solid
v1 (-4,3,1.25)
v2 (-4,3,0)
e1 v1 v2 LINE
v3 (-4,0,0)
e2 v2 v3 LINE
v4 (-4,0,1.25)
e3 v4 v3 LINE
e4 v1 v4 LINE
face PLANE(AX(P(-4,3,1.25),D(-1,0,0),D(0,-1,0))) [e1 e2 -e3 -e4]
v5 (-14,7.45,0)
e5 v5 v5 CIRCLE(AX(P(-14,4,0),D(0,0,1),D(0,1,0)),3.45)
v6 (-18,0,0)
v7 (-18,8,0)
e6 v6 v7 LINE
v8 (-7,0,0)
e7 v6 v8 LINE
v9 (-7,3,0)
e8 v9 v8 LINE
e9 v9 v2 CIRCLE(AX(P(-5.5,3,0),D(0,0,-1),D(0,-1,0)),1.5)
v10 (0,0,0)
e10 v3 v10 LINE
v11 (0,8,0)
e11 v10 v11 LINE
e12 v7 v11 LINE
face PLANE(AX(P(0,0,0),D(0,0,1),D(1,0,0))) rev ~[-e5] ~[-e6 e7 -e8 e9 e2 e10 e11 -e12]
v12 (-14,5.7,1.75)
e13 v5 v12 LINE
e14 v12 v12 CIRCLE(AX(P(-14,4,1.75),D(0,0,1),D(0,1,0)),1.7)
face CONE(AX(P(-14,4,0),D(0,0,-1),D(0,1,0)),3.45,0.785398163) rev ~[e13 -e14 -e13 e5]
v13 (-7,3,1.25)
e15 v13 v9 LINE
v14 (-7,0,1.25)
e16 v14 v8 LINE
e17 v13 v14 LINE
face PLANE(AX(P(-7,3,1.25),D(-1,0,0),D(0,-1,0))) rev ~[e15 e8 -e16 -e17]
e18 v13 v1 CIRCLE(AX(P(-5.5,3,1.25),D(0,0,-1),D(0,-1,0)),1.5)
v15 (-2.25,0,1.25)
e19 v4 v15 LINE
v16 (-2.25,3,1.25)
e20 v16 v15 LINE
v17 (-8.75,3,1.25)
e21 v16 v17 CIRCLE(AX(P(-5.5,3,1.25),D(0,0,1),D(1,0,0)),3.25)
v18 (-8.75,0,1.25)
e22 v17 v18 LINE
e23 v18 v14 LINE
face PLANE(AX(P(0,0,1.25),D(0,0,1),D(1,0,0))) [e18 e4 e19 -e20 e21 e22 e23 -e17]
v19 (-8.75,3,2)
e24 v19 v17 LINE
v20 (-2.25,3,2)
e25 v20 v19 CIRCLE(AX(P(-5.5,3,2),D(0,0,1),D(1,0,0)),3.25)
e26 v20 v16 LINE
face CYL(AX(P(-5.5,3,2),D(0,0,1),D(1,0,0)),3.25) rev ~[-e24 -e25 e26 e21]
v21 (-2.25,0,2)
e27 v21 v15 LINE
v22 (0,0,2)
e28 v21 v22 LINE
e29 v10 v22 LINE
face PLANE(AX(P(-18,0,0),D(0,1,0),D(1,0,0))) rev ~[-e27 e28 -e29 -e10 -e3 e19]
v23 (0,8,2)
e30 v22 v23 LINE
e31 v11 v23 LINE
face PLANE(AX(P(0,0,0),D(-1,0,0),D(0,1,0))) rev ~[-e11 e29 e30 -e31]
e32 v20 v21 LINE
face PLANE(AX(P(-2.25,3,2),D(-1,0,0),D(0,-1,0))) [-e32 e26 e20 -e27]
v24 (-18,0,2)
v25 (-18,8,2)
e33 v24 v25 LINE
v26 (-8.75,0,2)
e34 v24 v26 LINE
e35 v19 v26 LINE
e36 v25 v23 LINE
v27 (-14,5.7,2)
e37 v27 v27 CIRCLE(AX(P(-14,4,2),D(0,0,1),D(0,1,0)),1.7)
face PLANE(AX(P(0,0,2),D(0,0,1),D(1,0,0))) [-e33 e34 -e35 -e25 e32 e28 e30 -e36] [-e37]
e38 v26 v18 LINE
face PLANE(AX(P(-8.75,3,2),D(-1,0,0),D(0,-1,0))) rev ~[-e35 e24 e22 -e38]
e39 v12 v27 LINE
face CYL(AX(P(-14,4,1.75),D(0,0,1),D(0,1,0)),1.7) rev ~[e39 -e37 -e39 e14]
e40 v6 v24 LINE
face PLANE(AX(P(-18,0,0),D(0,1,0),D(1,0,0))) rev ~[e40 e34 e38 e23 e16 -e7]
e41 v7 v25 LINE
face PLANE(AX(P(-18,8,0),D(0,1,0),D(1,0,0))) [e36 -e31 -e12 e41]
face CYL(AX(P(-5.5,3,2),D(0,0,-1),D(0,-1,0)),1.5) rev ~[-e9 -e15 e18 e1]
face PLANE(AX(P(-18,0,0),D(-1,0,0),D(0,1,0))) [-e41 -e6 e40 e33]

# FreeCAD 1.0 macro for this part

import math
import FreeCAD as App
import Part
import Sketcher
Q = App.Units.Quantity

doc = App.newDocument("Part")
params = doc.addObject("Spreadsheet::Sheet", "Params")
for row, (alias, value) in enumerate([
    ("sketch1_width", "18 mm"),
    ("sketch1_height", "8 mm"),
    ("pad1_length", "2 mm"),
    ("sketch2_diameter", "3 mm"),
    ("hole_diameter", "3 mm"),
    ("hole_depth", "8 mm"),
    ("sketch3_radius", "3.25 mm"),
    ("sketch3_diameter", "3 mm"),
    ("sketch3_height", "3 mm"),
    ("pocket1_length", "0.75 mm"),
    ("sketch4_radius", "1.5 mm"),
    ("sketch5_diameter", "3.4 mm"),
    ("hole2_diameter", "3.4 mm"),
    ("hole2_csink_diameter", "6.9 mm"),
], start=1):
    params.set(f"A{row}", alias)
    params.set(f"B{row}", "=" + value)
    params.setAlias(f"B{row}", alias)

body = doc.addObject("PartDesign::Body", "Body")

# Sketch on XY plane
sketch1 = body.newObject("Sketcher::SketchObject", "Sketch")
sketch1.AttachmentSupport = (doc.getObject("XY_Plane"), [""])
sketch1.MapMode = "FlatFace"
sketch1.addGeometry(Part.LineSegment(App.Vector(-18, 8, 0), App.Vector(-18, 0, 0)), False)
sketch1.addGeometry(Part.LineSegment(App.Vector(-18, 0, 0), App.Vector(0, 0, 0)), False)
sketch1.addGeometry(Part.LineSegment(App.Vector(0, 0, 0), App.Vector(0, 8, 0)), False)
sketch1.addGeometry(Part.LineSegment(App.Vector(0, 8, 0), App.Vector(-18, 8, 0)), False)
sketch1.addConstraint(Sketcher.Constraint("Coincident", 0, 2, 1, 1))
sketch1.addConstraint(Sketcher.Constraint("Coincident", 1, 2, 2, 1))
sketch1.addConstraint(Sketcher.Constraint("Coincident", 2, 2, 3, 1))
sketch1.addConstraint(Sketcher.Constraint("Coincident", 3, 2, 0, 1))
sketch1.addConstraint(Sketcher.Constraint("Vertical", 0))
sketch1.addConstraint(Sketcher.Constraint("Horizontal", 1))
sketch1.addConstraint(Sketcher.Constraint("Vertical", 2))
sketch1.addConstraint(Sketcher.Constraint("Horizontal", 3))
sketch1.addConstraint(Sketcher.Constraint("Coincident", 1, 2, -1, 1))
sketch1.addConstraint(Sketcher.Constraint("DistanceX", 1, 1, 1, 2, Q("18 mm")))
sketch1.addConstraint(Sketcher.Constraint("DistanceY", 0, 2, 0, 1, Q("8 mm")))
sketch1.setExpression("Constraints[9]", "Params.sketch1_width")
sketch1.setExpression("Constraints[10]", "Params.sketch1_height")
pad1 = body.newObject("PartDesign::Pad", "Pad")
pad1.Profile = sketch1
pad1.setExpression("Length", "Params.pad1_length")

# Sketch on XY plane
sketch2 = body.newObject("Sketcher::SketchObject", "Sketch001")
sketch2.AttachmentSupport = (doc.getObject("XY_Plane"), [""])
sketch2.MapMode = "FlatFace"
sketch2.AttachmentOffset = App.Placement(App.Vector(0, 0, 2), App.Rotation())
sketch2.addGeometry(Part.Circle(App.Vector(-5.5, 3, 0), App.Vector(0, 0, 1), 1.5), False)
sketch2.addConstraint(Sketcher.Constraint("Diameter", 0, Q("3 mm")))
sketch2.addConstraint(Sketcher.Constraint("DistanceY", -1, 1, 0, 3, Q("3 mm")))
sketch2.addConstraint(Sketcher.Constraint("DistanceX", 0, 3, -1, 1, Q("5.5 mm")))
sketch2.setExpression("Constraints[0]", "Params.sketch2_diameter")
doc.recompute()
hole = body.newObject("PartDesign::Hole", "Hole")
hole.Profile = sketch2
hole.ThreadType = "None"
hole.setExpression("Diameter", "Params.hole_diameter")
hole.DepthType = "Dimension"
hole.setExpression("Depth", "Params.hole_depth")
hole.DrillPoint = "Angled"
hole.DrillPointAngle = 118

# Sketch on XY plane
sketch3 = body.newObject("Sketcher::SketchObject", "Sketch002")
sketch3.AttachmentSupport = (doc.getObject("XY_Plane"), [""])
sketch3.MapMode = "FlatFace"
sketch3.AttachmentOffset = App.Placement(App.Vector(0, 0, 2), App.Rotation())
sketch3.addGeometry(Part.LineSegment(App.Vector(-8.8, 3, 0), App.Vector(-8.8, 0, 0)), False)
sketch3.addGeometry(Part.LineSegment(App.Vector(-8.8, 0, 0), App.Vector(-2.2, 0, 0)), False)
sketch3.addGeometry(Part.LineSegment(App.Vector(-2.2, 0, 0), App.Vector(-2.2, 3, 0)), False)
sketch3.addGeometry(Part.ArcOfCircle(Part.Circle(App.Vector(-5.5, 3, 0), App.Vector(0, 0, 1), 3.2), math.radians(0), math.radians(180)), False)
sketch3.addGeometry(Part.Circle(App.Vector(-5.5, 3, 0), App.Vector(0, 0, 1), 1.5), False)
sketch3.addConstraint(Sketcher.Constraint("Coincident", 0, 2, 1, 1))
sketch3.addConstraint(Sketcher.Constraint("Coincident", 1, 2, 2, 1))
sketch3.addConstraint(Sketcher.Constraint("Tangent", 2, 2, 3, 1))
sketch3.addConstraint(Sketcher.Constraint("Tangent", 3, 2, 0, 1))
sketch3.addConstraint(Sketcher.Constraint("Vertical", 0))
sketch3.addConstraint(Sketcher.Constraint("Horizontal", 1))
sketch3.addConstraint(Sketcher.Constraint("Vertical", 2))
sketch3.addConstraint(Sketcher.Constraint("Coincident", 4, 3, 3, 3))
sketch3.addConstraint(Sketcher.Constraint("PointOnObject", 0, 2, -1))
sketch3.addConstraint(Sketcher.Constraint("Radius", 3, Q("3.25 mm")))
sketch3.addConstraint(Sketcher.Constraint("Diameter", 4, Q("3 mm")))
sketch3.addConstraint(Sketcher.Constraint("DistanceY", 0, 2, 0, 1, Q("3 mm")))
sketch3.addConstraint(Sketcher.Constraint("DistanceX", 3, 3, -1, 1, Q("5.5 mm")))
sketch3.setExpression("Constraints[9]", "Params.sketch3_radius")
sketch3.setExpression("Constraints[10]", "Params.sketch3_diameter")
sketch3.setExpression("Constraints[11]", "Params.sketch3_height")
pocket1 = body.newObject("PartDesign::Pocket", "Pocket")
pocket1.Profile = sketch3
pocket1.setExpression("Length", "Params.pocket1_length")

# Sketch on XY plane
sketch4 = body.newObject("Sketcher::SketchObject", "Sketch003")
sketch4.AttachmentSupport = (doc.getObject("XY_Plane"), [""])
sketch4.MapMode = "FlatFace"
sketch4.AttachmentOffset = App.Placement(App.Vector(0, 0, 1.25), App.Rotation())
sketch4.addGeometry(Part.LineSegment(App.Vector(-4, 0, 0), App.Vector(-4, 3, 0)), False)
sketch4.addGeometry(Part.ArcOfCircle(Part.Circle(App.Vector(-5.5, 3, 0), App.Vector(0, 0, 1), 1.5), math.radians(180), math.radians(360)), False)
sketch4.addGeometry(Part.LineSegment(App.Vector(-7, 3, 0), App.Vector(-7, 0, 0)), False)
sketch4.addGeometry(Part.LineSegment(App.Vector(-7, 0, 0), App.Vector(-4, 0, 0)), False)
sketch4.addConstraint(Sketcher.Constraint("Tangent", 0, 2, 1, 2))
sketch4.addConstraint(Sketcher.Constraint("Tangent", 1, 1, 2, 1))
sketch4.addConstraint(Sketcher.Constraint("Coincident", 2, 2, 3, 1))
sketch4.addConstraint(Sketcher.Constraint("Coincident", 3, 2, 0, 1))
sketch4.addConstraint(Sketcher.Constraint("Vertical", 0))
sketch4.addConstraint(Sketcher.Constraint("Vertical", 2))
sketch4.addConstraint(Sketcher.Constraint("Horizontal", 3))
sketch4.addConstraint(Sketcher.Constraint("PointOnObject", 2, 2, -1))
sketch4.addConstraint(Sketcher.Constraint("Equal", 3, 0))
sketch4.addConstraint(Sketcher.Constraint("Radius", 1, Q("1.5 mm")))
sketch4.addConstraint(Sketcher.Constraint("DistanceX", 0, 2, -1, 1, Q("4 mm")))
sketch4.setExpression("Constraints[9]", "Params.sketch4_radius")
pocket2 = body.newObject("PartDesign::Pocket", "Pocket001")
pocket2.Profile = sketch4
pocket2.Type = "ThroughAll"

# Sketch on XY plane
sketch5 = body.newObject("Sketcher::SketchObject", "Sketch004")
sketch5.AttachmentSupport = (doc.getObject("XY_Plane"), [""])
sketch5.MapMode = "FlatFace"
sketch5.addGeometry(Part.Circle(App.Vector(-14, 4, 0), App.Vector(0, 0, 1), 1.7), False)
sketch5.addConstraint(Sketcher.Constraint("Diameter", 0, Q("3.4 mm")))
sketch5.addConstraint(Sketcher.Constraint("DistanceX", 0, 3, -1, 1, Q("14 mm")))
sketch5.addConstraint(Sketcher.Constraint("DistanceY", -1, 1, 0, 3, Q("4 mm")))
sketch5.setExpression("Constraints[0]", "Params.sketch5_diameter")
doc.recompute()
hole2 = body.newObject("PartDesign::Hole", "Hole001")
hole2.Profile = sketch5
hole2.ThreadType = "None"
hole2.setExpression("Diameter", "Params.hole2_diameter")
hole2.DepthType = "ThroughAll"
hole2.HoleCutType = "Countersink"
hole2.setExpression("HoleCutDiameter", "Params.hole2_csink_diameter")
hole2.HoleCutCountersinkAngle = 90
hole2.Reversed = True

doc.recompute()
